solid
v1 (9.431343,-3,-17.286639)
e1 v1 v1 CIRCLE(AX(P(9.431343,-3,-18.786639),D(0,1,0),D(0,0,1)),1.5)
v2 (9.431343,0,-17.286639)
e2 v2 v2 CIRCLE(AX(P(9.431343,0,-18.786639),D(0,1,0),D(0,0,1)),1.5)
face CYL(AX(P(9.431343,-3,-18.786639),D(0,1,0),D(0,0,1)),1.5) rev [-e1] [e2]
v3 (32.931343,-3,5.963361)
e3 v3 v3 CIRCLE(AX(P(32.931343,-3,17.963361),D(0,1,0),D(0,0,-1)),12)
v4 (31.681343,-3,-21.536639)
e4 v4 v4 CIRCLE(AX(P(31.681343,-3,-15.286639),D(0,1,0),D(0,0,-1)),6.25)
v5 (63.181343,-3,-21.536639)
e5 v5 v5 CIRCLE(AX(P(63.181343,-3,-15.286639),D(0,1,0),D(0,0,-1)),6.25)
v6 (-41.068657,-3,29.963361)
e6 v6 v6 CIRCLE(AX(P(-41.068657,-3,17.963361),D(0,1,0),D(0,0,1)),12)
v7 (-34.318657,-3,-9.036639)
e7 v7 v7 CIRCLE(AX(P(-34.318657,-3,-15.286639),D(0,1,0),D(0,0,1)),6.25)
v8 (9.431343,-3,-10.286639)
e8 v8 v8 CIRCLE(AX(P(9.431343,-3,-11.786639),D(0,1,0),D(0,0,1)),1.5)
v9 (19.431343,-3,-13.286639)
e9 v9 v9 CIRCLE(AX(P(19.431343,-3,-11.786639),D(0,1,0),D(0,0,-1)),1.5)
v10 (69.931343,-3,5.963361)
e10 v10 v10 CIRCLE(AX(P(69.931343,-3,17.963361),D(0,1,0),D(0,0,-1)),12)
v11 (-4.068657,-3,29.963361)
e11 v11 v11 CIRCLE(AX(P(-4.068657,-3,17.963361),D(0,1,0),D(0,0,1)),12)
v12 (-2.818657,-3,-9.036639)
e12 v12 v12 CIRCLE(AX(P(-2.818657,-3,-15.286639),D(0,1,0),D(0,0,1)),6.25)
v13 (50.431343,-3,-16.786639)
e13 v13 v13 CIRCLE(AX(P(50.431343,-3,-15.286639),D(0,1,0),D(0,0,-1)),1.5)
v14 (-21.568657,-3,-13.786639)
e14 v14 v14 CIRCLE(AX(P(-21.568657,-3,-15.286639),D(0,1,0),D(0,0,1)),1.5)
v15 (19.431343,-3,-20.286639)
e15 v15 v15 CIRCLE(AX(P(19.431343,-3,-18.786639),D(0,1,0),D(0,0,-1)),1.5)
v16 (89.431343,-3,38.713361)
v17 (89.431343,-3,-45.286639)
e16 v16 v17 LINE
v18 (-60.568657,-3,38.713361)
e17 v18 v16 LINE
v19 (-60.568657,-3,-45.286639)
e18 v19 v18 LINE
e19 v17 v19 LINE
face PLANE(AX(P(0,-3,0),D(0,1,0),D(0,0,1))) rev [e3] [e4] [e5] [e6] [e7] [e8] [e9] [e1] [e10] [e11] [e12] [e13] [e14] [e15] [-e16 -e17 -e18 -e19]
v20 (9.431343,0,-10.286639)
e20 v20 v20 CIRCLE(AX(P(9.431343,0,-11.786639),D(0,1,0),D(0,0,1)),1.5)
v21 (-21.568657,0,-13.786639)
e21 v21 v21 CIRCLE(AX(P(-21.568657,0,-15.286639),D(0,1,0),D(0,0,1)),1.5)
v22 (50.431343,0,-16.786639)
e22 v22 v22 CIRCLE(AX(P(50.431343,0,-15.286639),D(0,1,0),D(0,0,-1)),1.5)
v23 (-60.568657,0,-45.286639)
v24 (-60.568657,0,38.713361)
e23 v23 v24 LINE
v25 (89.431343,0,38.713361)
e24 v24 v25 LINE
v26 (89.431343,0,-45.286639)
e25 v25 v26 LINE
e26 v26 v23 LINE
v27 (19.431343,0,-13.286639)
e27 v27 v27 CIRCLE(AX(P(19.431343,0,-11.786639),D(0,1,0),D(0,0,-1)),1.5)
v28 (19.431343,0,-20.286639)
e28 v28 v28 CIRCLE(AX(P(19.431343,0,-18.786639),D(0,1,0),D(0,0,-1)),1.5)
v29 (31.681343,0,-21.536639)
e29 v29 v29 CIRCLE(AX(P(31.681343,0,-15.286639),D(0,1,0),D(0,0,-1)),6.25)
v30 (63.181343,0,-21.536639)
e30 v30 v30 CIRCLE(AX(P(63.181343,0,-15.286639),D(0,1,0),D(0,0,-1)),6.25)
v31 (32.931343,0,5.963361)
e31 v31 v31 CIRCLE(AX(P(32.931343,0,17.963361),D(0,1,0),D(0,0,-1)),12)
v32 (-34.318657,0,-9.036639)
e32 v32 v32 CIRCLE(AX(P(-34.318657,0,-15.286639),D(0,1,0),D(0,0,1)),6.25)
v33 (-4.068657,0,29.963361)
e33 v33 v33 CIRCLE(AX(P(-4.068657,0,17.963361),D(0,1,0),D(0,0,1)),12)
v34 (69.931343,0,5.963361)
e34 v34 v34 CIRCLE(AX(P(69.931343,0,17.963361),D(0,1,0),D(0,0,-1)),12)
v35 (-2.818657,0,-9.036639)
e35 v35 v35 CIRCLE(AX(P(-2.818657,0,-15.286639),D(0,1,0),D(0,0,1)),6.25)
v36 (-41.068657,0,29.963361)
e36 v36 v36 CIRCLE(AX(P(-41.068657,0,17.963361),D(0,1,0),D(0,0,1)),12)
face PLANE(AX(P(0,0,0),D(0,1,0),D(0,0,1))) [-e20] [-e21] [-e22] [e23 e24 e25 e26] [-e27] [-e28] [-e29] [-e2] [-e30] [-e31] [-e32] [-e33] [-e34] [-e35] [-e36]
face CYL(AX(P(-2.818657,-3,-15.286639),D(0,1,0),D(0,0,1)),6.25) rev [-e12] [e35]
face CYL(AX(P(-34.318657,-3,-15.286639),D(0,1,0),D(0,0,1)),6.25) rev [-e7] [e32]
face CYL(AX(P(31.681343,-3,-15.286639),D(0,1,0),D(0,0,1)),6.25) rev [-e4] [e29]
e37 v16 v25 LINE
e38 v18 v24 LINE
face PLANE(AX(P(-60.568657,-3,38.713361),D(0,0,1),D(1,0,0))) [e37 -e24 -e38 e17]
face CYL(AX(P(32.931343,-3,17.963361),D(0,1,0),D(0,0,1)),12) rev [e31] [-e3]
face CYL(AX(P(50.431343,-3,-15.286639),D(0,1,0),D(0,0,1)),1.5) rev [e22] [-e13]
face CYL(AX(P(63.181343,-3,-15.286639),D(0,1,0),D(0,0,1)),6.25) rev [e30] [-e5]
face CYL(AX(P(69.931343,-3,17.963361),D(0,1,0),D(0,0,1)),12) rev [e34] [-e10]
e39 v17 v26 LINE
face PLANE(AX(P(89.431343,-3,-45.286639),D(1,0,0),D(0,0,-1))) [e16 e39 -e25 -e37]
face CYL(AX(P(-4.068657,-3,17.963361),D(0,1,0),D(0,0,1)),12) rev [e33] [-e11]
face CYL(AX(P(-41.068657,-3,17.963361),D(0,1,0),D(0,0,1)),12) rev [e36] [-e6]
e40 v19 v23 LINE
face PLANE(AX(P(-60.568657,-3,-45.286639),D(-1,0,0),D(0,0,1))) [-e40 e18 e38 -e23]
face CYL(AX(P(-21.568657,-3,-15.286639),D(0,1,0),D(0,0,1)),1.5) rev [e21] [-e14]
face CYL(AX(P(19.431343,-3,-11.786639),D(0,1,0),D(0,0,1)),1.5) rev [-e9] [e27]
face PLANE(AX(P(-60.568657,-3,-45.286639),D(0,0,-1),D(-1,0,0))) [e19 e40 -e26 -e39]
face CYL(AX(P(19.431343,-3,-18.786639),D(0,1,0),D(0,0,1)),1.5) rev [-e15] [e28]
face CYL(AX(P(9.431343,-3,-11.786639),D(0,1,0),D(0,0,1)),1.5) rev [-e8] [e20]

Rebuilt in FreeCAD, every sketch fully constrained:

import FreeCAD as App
import Part
import Sketcher

V = App.Vector
Q = App.Units.Quantity


def add_polygon(sketch, points):
    """Adds a closed chain of lines whose ends are joined by coincident constraints."""
    first, n = sketch.GeometryCount, len(points)
    for a, b in zip(points, points[1:] + points[:1]):
        sketch.addGeometry(Part.LineSegment(App.Vector(*a, 0), App.Vector(*b, 0)), False)
    for i in range(n):
        sketch.addConstraint(Sketcher.Constraint("Coincident", first + i, 2, first + (i + 1) % n, 1))

doc = App.newDocument("Part")
body = doc.addObject("PartDesign::Body", "Body")

# Sketch on XZ plane
sketch1 = body.newObject("Sketcher::SketchObject", "Sketch")
sketch1.AttachmentSupport = (doc.getObject("XZ_Plane"), [""])
sketch1.MapMode = "FlatFace"
add_polygon(sketch1, [(-60.6, -45.3), (-60.6, 38.7), (89.4, 38.7), (89.4, -45.3)])  # lines 0-3
sketch1.addGeometry(Part.Circle(V(-41.1, 18, 0), V(0, 0, 1), 12), False)  # 4
sketch1.addGeometry(Part.Circle(V(-4.1, 18, 0), V(0, 0, 1), 12), False)  # 5
sketch1.addGeometry(Part.Circle(V(32.9, 18, 0), V(0, 0, 1), 12), False)  # 6
sketch1.addGeometry(Part.Circle(V(69.9, 18, 0), V(0, 0, 1), 12), False)  # 7
sketch1.addGeometry(Part.Circle(V(-34.3, -15.3, 0), V(0, 0, 1), 6.2), False)  # 8
sketch1.addGeometry(Part.Circle(V(-21.6, -15.3, 0), V(0, 0, 1), 1.5), False)  # 9
sketch1.addGeometry(Part.Circle(V(9.4, -11.8, 0), V(0, 0, 1), 1.5), False)  # 10
sketch1.addGeometry(Part.Circle(V(-2.8, -15.3, 0), V(0, 0, 1), 6.2), False)  # 11
sketch1.addGeometry(Part.Circle(V(9.4, -18.8, 0), V(0, 0, 1), 1.5), False)  # 12
sketch1.addGeometry(Part.Circle(V(19.4, -11.8, 0), V(0, 0, 1), 1.5), False)  # 13
sketch1.addGeometry(Part.Circle(V(19.4, -18.8, 0), V(0, 0, 1), 1.5), False)  # 14
sketch1.addGeometry(Part.Circle(V(31.7, -15.3, 0), V(0, 0, 1), 6.2), False)  # 15
sketch1.addGeometry(Part.Circle(V(50.4, -15.3, 0), V(0, 0, 1), 1.5), False)  # 16
sketch1.addGeometry(Part.Circle(V(63.2, -15.3, 0), V(0, 0, 1), 6.2), False)  # 17
sketch1.addConstraint([
    Sketcher.Constraint("Vertical", 0),
    Sketcher.Constraint("Horizontal", 1),
    Sketcher.Constraint("Vertical", 2),
    Sketcher.Constraint("Horizontal", 3),
    Sketcher.Constraint("Equal", 4, 5),
    Sketcher.Constraint("Equal", 5, 6),
    Sketcher.Constraint("Equal", 6, 7),
    Sketcher.Constraint("Equal", 9, 10),
    Sketcher.Constraint("Equal", 8, 11),
    Sketcher.Constraint("Equal", 10, 12),
    Sketcher.Constraint("Equal", 12, 13),
    Sketcher.Constraint("Equal", 13, 14),
    Sketcher.Constraint("Equal", 11, 15),
    Sketcher.Constraint("Equal", 14, 16),
    Sketcher.Constraint("Equal", 15, 17),
    Sketcher.Constraint("Horizontal", 4, 3, 5, 3),
    Sketcher.Constraint("Horizontal", 5, 3, 6, 3),
    Sketcher.Constraint("Horizontal", 6, 3, 7, 3),
    Sketcher.Constraint("Horizontal", 8, 3, 9, 3),
    Sketcher.Constraint("Horizontal", 9, 3, 11, 3),
    Sketcher.Constraint("Horizontal", 10, 3, 13, 3),
    Sketcher.Constraint("Horizontal", 12, 3, 14, 3),
    Sketcher.Constraint("Horizontal", 11, 3, 15, 3),
    Sketcher.Constraint("Horizontal", 15, 3, 16, 3),
    Sketcher.Constraint("Horizontal", 16, 3, 17, 3),
    Sketcher.Constraint("Vertical", 10, 3, 12, 3),
    Sketcher.Constraint("Vertical", 13, 3, 14, 3),
    Sketcher.Constraint("Diameter", 4, Q("24 mm")),
    Sketcher.Constraint("Diameter", 9, Q("3 mm")),
    Sketcher.Constraint("Diameter", 8, Q("12.5 mm")),
    Sketcher.Constraint("DistanceX", 1, 1, 1, 2, Q("150 mm")),
    Sketcher.Constraint("DistanceY", 0, 1, 0, 2, Q("84 mm")),
    Sketcher.Constraint("DistanceX", 4, 3, 5, 3, Q("37 mm")),
    Sketcher.Constraint("DistanceX", 5, 3, 6, 3, Q("37 mm")),
    Sketcher.Constraint("DistanceX", 6, 3, 7, 3, Q("37 mm")),
    Sketcher.Constraint("DistanceX", 9, 3, 10, 3, Q("31 mm")),
    Sketcher.Constraint("DistanceY", 12, 3, 10, 3, Q("7 mm")),
    Sketcher.Constraint("DistanceX", 10, 3, 13, 3, Q("10 mm")),
    Sketcher.Constraint("DistanceX", 13, 3, 16, 3, Q("31 mm")),
    Sketcher.Constraint("DistanceY", 8, 3, 0, 2, Q("54 mm")),
    Sketcher.Constraint("DistanceX", 0, 2, 9, 3, Q("39 mm")),
    Sketcher.Constraint("DistanceX", 9, 3, 5, 3, Q("17.5 mm")),
    Sketcher.Constraint("DistanceY", 9, 3, 10, 3, Q("3.5 mm")),
    Sketcher.Constraint("DistanceX", 8, 3, 11, 3, Q("31.5 mm")),
    Sketcher.Constraint("DistanceX", 15, 3, 17, 3, Q("31.5 mm")),
    Sketcher.Constraint("DistanceX", 4, 3, 8, 3, Q("6.75 mm")),
    Sketcher.Constraint("DistanceY", 8, 3, 4, 3, Q("33.25 mm")),
    Sketcher.Constraint("DistanceX", 13, 3, 15, 3, Q("12.25 mm")),
    Sketcher.Constraint("DistanceY", -1, 1, 4, 3, Q("17.963361 mm")),
    Sketcher.Constraint("DistanceX", 4, 3, -1, 1, Q("41.068657 mm")),
])
pad1 = body.newObject("PartDesign::Pad", "Pad")
pad1.Profile = sketch1
pad1.Length = 3

doc.recompute()
